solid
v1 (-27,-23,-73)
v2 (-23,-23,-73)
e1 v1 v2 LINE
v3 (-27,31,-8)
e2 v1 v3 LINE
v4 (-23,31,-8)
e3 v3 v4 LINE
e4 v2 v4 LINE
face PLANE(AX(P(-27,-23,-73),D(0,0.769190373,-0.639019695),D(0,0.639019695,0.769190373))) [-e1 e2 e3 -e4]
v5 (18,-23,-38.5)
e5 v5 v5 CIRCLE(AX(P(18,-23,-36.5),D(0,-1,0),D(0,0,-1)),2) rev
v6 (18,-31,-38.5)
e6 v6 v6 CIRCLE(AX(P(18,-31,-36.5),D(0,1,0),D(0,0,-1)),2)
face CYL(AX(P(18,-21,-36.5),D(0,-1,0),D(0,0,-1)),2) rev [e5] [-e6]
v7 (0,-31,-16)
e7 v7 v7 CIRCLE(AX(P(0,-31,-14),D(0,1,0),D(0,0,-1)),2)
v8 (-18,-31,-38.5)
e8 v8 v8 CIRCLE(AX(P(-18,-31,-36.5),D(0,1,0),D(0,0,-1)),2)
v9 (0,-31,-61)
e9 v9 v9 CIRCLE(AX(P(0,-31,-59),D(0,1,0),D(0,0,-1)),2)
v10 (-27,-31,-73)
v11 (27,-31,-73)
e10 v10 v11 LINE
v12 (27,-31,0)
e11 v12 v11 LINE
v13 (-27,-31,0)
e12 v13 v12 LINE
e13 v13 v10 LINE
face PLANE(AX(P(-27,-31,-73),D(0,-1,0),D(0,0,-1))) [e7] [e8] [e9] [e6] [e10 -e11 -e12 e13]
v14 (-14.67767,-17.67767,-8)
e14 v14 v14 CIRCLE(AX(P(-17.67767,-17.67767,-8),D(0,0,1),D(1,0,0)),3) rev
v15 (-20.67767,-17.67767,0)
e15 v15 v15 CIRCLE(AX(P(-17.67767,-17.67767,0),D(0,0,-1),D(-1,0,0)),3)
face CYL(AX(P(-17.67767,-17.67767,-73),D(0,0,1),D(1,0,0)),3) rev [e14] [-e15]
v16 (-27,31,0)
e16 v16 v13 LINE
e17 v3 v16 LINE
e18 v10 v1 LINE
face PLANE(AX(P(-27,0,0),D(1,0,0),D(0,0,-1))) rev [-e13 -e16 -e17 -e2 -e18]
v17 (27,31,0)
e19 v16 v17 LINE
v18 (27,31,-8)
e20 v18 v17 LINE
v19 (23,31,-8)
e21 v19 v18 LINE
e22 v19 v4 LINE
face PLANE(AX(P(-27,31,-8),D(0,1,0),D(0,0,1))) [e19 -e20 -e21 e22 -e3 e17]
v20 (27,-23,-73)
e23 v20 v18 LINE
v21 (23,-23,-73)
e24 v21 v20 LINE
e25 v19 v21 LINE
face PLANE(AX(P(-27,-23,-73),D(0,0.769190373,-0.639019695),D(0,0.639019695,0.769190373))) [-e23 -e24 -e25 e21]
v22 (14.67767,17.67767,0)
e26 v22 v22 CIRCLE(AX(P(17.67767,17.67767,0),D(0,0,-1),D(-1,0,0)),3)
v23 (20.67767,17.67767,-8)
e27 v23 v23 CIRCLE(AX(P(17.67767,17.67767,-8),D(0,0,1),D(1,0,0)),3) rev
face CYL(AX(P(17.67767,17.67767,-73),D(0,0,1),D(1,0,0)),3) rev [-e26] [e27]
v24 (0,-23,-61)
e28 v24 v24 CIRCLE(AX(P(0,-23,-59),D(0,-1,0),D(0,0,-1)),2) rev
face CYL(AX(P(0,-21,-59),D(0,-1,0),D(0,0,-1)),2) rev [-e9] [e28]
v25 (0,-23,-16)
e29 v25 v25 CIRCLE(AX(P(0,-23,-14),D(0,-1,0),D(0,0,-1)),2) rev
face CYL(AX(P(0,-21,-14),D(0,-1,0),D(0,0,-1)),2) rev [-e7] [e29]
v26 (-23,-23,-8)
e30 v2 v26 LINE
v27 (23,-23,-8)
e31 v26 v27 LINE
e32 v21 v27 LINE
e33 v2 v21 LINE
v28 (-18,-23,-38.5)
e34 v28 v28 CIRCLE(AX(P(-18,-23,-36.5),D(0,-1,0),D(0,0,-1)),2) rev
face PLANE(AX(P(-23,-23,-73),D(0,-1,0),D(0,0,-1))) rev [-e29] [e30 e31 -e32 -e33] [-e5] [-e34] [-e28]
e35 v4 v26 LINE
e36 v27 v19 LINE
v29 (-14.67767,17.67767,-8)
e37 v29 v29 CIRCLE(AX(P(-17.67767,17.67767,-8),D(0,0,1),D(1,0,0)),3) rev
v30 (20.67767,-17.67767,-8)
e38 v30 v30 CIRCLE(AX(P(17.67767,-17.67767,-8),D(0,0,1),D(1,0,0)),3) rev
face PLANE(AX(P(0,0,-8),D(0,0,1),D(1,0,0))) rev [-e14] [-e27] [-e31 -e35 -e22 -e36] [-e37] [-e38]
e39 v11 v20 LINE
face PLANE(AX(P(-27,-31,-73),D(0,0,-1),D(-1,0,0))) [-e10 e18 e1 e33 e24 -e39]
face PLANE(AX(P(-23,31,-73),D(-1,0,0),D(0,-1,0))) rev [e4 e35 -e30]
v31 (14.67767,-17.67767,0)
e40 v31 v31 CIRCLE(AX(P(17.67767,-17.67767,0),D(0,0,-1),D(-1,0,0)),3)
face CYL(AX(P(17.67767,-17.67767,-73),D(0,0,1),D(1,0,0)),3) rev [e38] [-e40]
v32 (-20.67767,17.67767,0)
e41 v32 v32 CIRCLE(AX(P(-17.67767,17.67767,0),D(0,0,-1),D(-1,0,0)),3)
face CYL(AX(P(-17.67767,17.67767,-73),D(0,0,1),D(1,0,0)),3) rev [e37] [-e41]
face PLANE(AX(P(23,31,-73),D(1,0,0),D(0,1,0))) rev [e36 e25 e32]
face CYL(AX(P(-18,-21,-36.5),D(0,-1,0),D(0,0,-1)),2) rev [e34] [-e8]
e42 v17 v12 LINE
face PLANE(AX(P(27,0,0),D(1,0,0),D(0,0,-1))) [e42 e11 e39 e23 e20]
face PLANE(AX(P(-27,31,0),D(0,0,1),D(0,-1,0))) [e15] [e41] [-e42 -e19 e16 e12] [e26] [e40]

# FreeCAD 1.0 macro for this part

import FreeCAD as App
import Part
import Sketcher
from FreeCAD import Vector


def add_polygon(sketch, points):
    """Adds a closed chain of lines whose ends are joined by coincident constraints."""
    first, n = sketch.GeometryCount, len(points)
    for a, b in zip(points, points[1:] + points[:1]):
        sketch.addGeometry(Part.LineSegment(App.Vector(*a, 0), App.Vector(*b, 0)), False)
    for i in range(n):
        sketch.addConstraint(Sketcher.Constraint("Coincident", first + i, 2, first + (i + 1) % n, 1))

doc = App.newDocument("Part")
body = doc.addObject("PartDesign::Body", "Body")

sketch1 = body.newObject("Sketcher::SketchObject", "Sketch")
sketch1.AttachmentSupport = (doc.getObject("YZ_Plane"), [""])
sketch1.MapMode = "FlatFace"
add_polygon(sketch1, [(31, 0), (-31, 0), (-31, -73), (-23, -73), (31, -8)])
sketch1.addConstraint([
    Sketcher.Constraint("Horizontal", 0),
    Sketcher.Constraint("Vertical", 1),
    Sketcher.Constraint("Horizontal", 2),
    Sketcher.Constraint("Vertical", 4),
    Sketcher.Constraint("Symmetric", 0, 2, 4, 2, -1, 1),
    Sketcher.Constraint("Equal", 2, 4),
    Sketcher.Constraint("DistanceX", 0, 2, 0, 1, 62.0),
    Sketcher.Constraint("DistanceX", 2, 1, 2, 2, 8.0),
    Sketcher.Constraint("DistanceY", 1, 2, 1, 1, 73.0),
])
pad1 = body.newObject("PartDesign::Pad", "Pad")
pad1.Profile = sketch1
pad1.Type = "TwoLengths"
pad1.Length = 27
pad1.Length2 = 27

sketch2 = body.newObject("Sketcher::SketchObject", "Sketch001")
sketch2.AttachmentSupport = (doc.getObject("XY_Plane"), [""])
sketch2.MapMode = "FlatFace"
sketch2.AttachmentOffset = App.Placement(Vector(0, 0, -8), App.Rotation())
add_polygon(sketch2, [(-23, 31), (-23, -23), (23, -23), (23, 31)])
sketch2.addConstraint([
    Sketcher.Constraint("Vertical", 0),
    Sketcher.Constraint("Horizontal", 1),
    Sketcher.Constraint("Vertical", 2),
    Sketcher.Constraint("Horizontal", 3),
    Sketcher.Constraint("DistanceX", 1, 1, 1, 2, 46.0),
    Sketcher.Constraint("DistanceY", 0, 2, 0, 1, 54.0),
    Sketcher.Constraint("DistanceX", 0, 2, -1, 1, 23.0),
    Sketcher.Constraint("DistanceY", 0, 2, -1, 1, 23.0),
])
pocket1 = body.newObject("PartDesign::Pocket", "Pocket")
pocket1.Profile = sketch2
pocket1.Type = "ThroughAll"

sketch3 = body.newObject("Sketcher::SketchObject", "Sketch002")
sketch3.AttachmentSupport = (doc.getObject("XY_Plane"), [""])
sketch3.MapMode = "FlatFace"
sketch3.addGeometry([
    Part.Circle(Vector(-17.7, 17.7, 0), Vector(0, 0, 1), 3),
    Part.Circle(Vector(-17.7, -17.7, 0), Vector(0, 0, 1), 3),
    Part.Circle(Vector(17.7, -17.7, 0), Vector(0, 0, 1), 3),
    Part.Circle(Vector(17.7, 17.7, 0), Vector(0, 0, 1), 3),
], False)
sketch3.addConstraint([
    Sketcher.Constraint("Equal", 0, 1),
    Sketcher.Constraint("Equal", 1, 2),
    Sketcher.Constraint("Equal", 2, 3),
    Sketcher.Constraint("Symmetric", 0, 3, 2, 3, -1, 1),
    Sketcher.Constraint("Symmetric", 1, 3, 3, 3, -1, 1),
    Sketcher.Constraint("Symmetric", 1, 3, 2, 3, -2),
    Sketcher.Constraint("Diameter", 0, 6.0),
    Sketcher.Constraint("DistanceX", 0, 3, -1, 1, 17.67767),
    Sketcher.Constraint("DistanceY", -1, 1, 0, 3, 17.67767),
])
pocket2 = body.newObject("PartDesign::Pocket", "Pocket001")
pocket2.Profile = sketch3
pocket2.Type = "ThroughAll"

sketch4 = body.newObject("Sketcher::SketchObject", "Sketch003")
sketch4.AttachmentSupport = (doc.getObject("XZ_Plane"), [""])
sketch4.MapMode = "FlatFace"
sketch4.AttachmentOffset = App.Placement(Vector(0, 0, 31), App.Rotation())
sketch4.addGeometry([
    Part.Circle(Vector(0, -14, 0), Vector(0, 0, 1), 2),
    Part.Circle(Vector(0, -59, 0), Vector(0, 0, 1), 2),
    Part.Circle(Vector(18, -36.5, 0), Vector(0, 0, 1), 2),
    Part.Circle(Vector(-18, -36.5, 0), Vector(0, 0, 1), 2),
], False)
sketch4.addConstraint([
    Sketcher.Constraint("Equal", 0, 1),
    Sketcher.Constraint("Equal", 1, 2),
    Sketcher.Constraint("Equal", 2, 3),
    Sketcher.Constraint("Symmetric", 2, 3, 3, 3, -2),
    Sketcher.Constraint("PointOnObject", 0, 3, -2),
    Sketcher.Constraint("PointOnObject", 1, 3, -2),
    Sketcher.Constraint("Diameter", 0, 4.0),
    Sketcher.Constraint("DistanceY", 0, 3, -1, 1, 14.0),
    Sketcher.Constraint("DistanceY", 1, 3, -1, 1, 59.0),
    Sketcher.Constraint("DistanceX", -1, 1, 2, 3, 18.0),
    Sketcher.Constraint("DistanceY", 2, 3, -1, 1, 36.5),
])
pocket3 = body.newObject("PartDesign::Pocket", "Pocket002")
pocket3.Profile = sketch4
pocket3.Length = 10

doc.recompute()
